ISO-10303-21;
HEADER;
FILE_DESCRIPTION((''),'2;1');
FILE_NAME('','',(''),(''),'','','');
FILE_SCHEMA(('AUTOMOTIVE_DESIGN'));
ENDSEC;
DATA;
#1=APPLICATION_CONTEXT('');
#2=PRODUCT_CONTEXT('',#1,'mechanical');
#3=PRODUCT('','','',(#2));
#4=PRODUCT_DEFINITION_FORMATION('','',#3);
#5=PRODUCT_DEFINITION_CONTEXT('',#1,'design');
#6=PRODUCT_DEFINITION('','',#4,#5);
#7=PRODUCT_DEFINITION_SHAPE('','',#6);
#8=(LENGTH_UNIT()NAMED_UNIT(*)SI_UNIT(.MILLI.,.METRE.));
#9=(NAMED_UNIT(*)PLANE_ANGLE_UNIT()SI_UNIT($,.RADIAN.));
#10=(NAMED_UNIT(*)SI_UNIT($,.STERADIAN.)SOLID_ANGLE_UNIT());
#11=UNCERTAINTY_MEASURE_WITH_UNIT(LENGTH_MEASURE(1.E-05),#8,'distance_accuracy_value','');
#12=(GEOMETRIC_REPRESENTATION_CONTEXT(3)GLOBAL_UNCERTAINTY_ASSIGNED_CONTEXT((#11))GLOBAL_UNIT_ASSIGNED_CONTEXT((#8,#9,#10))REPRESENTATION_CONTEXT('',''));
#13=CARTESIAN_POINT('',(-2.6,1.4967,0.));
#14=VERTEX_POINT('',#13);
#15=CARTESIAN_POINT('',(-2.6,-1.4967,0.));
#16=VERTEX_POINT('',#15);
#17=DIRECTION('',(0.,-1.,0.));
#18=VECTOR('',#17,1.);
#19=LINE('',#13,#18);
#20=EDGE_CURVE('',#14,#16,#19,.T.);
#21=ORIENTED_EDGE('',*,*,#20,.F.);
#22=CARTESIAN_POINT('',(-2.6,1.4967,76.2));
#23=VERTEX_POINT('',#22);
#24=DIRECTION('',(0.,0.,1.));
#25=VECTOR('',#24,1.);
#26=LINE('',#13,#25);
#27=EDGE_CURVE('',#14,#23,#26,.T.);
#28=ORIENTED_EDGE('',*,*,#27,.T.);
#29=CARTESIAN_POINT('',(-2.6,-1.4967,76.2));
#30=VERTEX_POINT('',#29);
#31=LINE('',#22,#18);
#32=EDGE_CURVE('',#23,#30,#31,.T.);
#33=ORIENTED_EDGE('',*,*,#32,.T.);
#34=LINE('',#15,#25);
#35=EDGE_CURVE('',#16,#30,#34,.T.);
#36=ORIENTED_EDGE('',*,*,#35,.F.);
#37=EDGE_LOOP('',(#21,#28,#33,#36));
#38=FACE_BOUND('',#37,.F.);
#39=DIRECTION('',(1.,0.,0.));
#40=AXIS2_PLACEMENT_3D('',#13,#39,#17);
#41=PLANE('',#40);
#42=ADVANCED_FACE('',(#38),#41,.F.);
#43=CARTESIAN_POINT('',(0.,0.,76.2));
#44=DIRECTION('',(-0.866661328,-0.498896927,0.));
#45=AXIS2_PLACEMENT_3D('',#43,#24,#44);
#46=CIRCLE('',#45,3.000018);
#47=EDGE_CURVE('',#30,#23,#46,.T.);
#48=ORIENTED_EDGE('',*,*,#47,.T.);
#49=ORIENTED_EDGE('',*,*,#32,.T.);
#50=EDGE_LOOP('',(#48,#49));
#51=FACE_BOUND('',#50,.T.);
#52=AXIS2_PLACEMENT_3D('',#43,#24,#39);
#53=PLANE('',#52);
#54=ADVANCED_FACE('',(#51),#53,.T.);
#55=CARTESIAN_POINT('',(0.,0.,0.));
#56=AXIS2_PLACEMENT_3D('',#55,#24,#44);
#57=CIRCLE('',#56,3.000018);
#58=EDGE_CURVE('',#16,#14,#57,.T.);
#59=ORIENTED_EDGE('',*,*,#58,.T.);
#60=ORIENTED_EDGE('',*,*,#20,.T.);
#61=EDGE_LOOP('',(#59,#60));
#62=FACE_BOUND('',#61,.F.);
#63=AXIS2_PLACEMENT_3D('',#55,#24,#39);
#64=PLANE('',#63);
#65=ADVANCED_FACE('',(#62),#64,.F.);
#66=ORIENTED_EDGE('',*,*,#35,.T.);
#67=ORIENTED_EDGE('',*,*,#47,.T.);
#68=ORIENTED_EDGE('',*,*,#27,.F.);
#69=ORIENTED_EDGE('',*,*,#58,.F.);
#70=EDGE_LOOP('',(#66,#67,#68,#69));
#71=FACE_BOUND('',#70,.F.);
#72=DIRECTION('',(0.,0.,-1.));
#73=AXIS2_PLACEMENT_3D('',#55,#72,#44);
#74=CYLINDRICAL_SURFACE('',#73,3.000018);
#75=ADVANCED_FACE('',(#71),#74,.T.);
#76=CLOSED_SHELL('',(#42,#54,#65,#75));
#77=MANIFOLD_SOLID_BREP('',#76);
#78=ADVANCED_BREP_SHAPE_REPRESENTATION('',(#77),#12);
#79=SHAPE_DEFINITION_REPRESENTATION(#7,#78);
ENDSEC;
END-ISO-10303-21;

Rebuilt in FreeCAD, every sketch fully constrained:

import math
import FreeCAD as App
import Part
import Sketcher
from FreeCAD import Vector

doc = App.newDocument("Part")
params = doc.addObject("Spreadsheet::Sheet", "Params")
for row, (alias, value) in enumerate([
    ("sketch1_radius", "3 mm"),
    ("pad1_length", "76.2 mm"),
], start=1):
    params.set(f"A{row}", alias)
    params.set(f"B{row}", "=" + value)
    params.setAlias(f"B{row}", alias)

body = doc.addObject("PartDesign::Body", "Body")

# Sketch on XY plane
sketch1 = body.newObject("Sketcher::SketchObject", "Sketch")
sketch1.AttachmentSupport = (doc.getObject("XY_Plane"), [""])
sketch1.MapMode = "FlatFace"
sketch1.addGeometry([
    Part.LineSegment(Vector(-2.6, 1.5, 0), Vector(-2.6, -1.5, 0)),
    Part.ArcOfCircle(Part.Circle(Vector(0, 0, 0), Vector(0, 0, 1), 3), math.radians(-150), math.radians(150)),
], False)
sketch1.addConstraint([
    Sketcher.Constraint("Coincident", 0, 1, 1, 2),
    Sketcher.Constraint("Coincident", 1, 1, 0, 2),
    Sketcher.Constraint("Vertical", 0),
    Sketcher.Constraint("Coincident", 1, 3, -1, 1),
    Sketcher.Constraint("Radius", 1, 3.0),
    Sketcher.Constraint("DistanceX", 0, 1, -1, 1, 2.6),
])
sketch1.setExpression("Constraints[4]", "Params.sketch1_radius")
pad1 = body.newObject("PartDesign::Pad", "Pad")
pad1.Profile = sketch1
pad1.setExpression("Length", "Params.pad1_length")

doc.recompute()
